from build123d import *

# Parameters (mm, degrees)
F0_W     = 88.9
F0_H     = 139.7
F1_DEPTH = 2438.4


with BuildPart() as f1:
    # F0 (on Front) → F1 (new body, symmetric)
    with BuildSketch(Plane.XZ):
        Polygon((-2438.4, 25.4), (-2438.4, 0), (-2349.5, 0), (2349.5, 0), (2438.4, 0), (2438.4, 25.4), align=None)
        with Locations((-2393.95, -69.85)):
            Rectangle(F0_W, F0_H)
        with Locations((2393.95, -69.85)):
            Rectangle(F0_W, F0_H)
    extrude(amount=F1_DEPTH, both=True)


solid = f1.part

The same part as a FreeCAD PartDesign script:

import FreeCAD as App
import Part
import Sketcher
Q = App.Units.Quantity

doc = App.newDocument("Part")
params = doc.addObject("Spreadsheet::Sheet", "Params")
for row, (alias, value) in enumerate([
    ("sketch1_width", "185 in"),
    ("sketch1_width2", "192 in"),
    ("sketch1_height", "6.5 in"),
    ("sketch1_height2", "5.5 in"),
    ("pad1_length", "192 in"),
], start=1):
    params.set(f"A{row}", alias)
    params.set(f"B{row}", "=" + value)
    params.setAlias(f"B{row}", alias)

body = doc.addObject("PartDesign::Body", "Body")

sketch1 = body.newObject("Sketcher::SketchObject", "Sketch")
sketch1.AttachmentSupport = (doc.getObject("XZ_Plane"), [""])
sketch1.MapMode = "FlatFace"
sketch1.addGeometry([
    Part.LineSegment(App.Vector(-2438, 25, 0), App.Vector(-2438, -140, 0)),
    Part.LineSegment(App.Vector(-2438, -140, 0), App.Vector(-2350, -140, 0)),
    Part.LineSegment(App.Vector(-2350, -140, 0), App.Vector(-2350, 0, 0)),
    Part.LineSegment(App.Vector(-2350, 0, 0), App.Vector(2350, 0, 0)),
    Part.LineSegment(App.Vector(2350, 0, 0), App.Vector(2350, -140, 0)),
    Part.LineSegment(App.Vector(2350, -140, 0), App.Vector(2438, -140, 0)),
    Part.LineSegment(App.Vector(2438, -140, 0), App.Vector(2438, 25, 0)),
    Part.LineSegment(App.Vector(2438, 25, 0), App.Vector(-2438, 25, 0)),
], False)
sketch1.addConstraint([
    Sketcher.Constraint("Coincident", 0, 2, 1, 1),
    Sketcher.Constraint("Coincident", 1, 2, 2, 1),
    Sketcher.Constraint("Coincident", 2, 2, 3, 1),
    Sketcher.Constraint("Coincident", 3, 2, 4, 1),
    Sketcher.Constraint("Coincident", 4, 2, 5, 1),
    Sketcher.Constraint("Coincident", 5, 2, 6, 1),
    Sketcher.Constraint("Coincident", 6, 2, 7, 1),
    Sketcher.Constraint("Coincident", 7, 2, 0, 1),
    Sketcher.Constraint("Vertical", 0),
    Sketcher.Constraint("Horizontal", 1),
    Sketcher.Constraint("Vertical", 2),
    Sketcher.Constraint("Horizontal", 3),
    Sketcher.Constraint("Vertical", 4),
    Sketcher.Constraint("Horizontal", 5),
    Sketcher.Constraint("Vertical", 6),
    Sketcher.Constraint("Horizontal", 7),
    Sketcher.Constraint("Symmetric", 2, 2, 3, 2, -1, 1),
    Sketcher.Constraint("Symmetric", 0, 2, 5, 2, -2),
    Sketcher.Constraint("DistanceX", 3, 1, 3, 2, Q("185 in")),
    Sketcher.Constraint("DistanceX", 7, 2, 7, 1, Q("192 in")),
    Sketcher.Constraint("DistanceY", 0, 2, 0, 1, Q("6.5 in")),
    Sketcher.Constraint("DistanceY", 2, 1, 2, 2, Q("5.5 in")),
])
sketch1.setExpression("Constraints[18]", "Params.sketch1_width")
sketch1.setExpression("Constraints[19]", "Params.sketch1_width2")
sketch1.setExpression("Constraints[20]", "Params.sketch1_height")
sketch1.setExpression("Constraints[21]", "Params.sketch1_height2")
pad1 = body.newObject("PartDesign::Pad", "Pad")
pad1.Profile = sketch1
pad1.setExpression("Length", "Params.pad1_length")
pad1.Midplane = True

doc.recompute()
